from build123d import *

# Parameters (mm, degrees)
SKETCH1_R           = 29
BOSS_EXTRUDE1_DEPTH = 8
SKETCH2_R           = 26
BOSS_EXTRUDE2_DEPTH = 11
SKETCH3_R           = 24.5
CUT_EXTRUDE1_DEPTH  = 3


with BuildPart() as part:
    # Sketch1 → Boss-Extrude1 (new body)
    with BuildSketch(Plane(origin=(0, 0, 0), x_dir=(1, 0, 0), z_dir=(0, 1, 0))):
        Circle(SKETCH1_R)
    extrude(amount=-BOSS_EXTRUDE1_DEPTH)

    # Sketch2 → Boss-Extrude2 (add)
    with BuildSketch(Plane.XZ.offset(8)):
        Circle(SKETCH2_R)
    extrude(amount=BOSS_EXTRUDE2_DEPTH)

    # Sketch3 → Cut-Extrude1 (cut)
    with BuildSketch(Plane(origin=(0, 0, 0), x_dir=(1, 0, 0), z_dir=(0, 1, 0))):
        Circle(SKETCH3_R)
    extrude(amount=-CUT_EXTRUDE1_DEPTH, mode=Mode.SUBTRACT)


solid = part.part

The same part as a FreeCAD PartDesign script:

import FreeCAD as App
import Part
import Sketcher
from FreeCAD import Vector

doc = App.newDocument("Part")
body = doc.addObject("PartDesign::Body", "Body")

# Sketch on XZ plane
sketch1 = body.newObject("Sketcher::SketchObject", "Sketch")
sketch1.AttachmentSupport = (doc.getObject("XZ_Plane"), [""])
sketch1.MapMode = "FlatFace"
sketch1.addGeometry(Part.Circle(Vector(0, 0, 0), Vector(0, 0, 1), 29), False)
sketch1.addConstraint([
    Sketcher.Constraint("Coincident", 0, 3, -1, 1),
    Sketcher.Constraint("Diameter", 0, 58.0),
])
pad1 = body.newObject("PartDesign::Pad", "Pad")
pad1.Profile = sketch1
pad1.Length = 8

# Sketch on XZ plane
sketch2 = body.newObject("Sketcher::SketchObject", "Sketch001")
sketch2.AttachmentSupport = (doc.getObject("XZ_Plane"), [""])
sketch2.MapMode = "FlatFace"
sketch2.AttachmentOffset = App.Placement(Vector(0, 0, 8), App.Rotation())
sketch2.addGeometry(Part.Circle(Vector(0, 0, 0), Vector(0, 0, 1), 26), False)
sketch2.addConstraint([
    Sketcher.Constraint("Coincident", 0, 3, -1, 1),
    Sketcher.Constraint("Diameter", 0, 52.0),
])
pad2 = body.newObject("PartDesign::Pad", "Pad001")
pad2.Profile = sketch2
pad2.Length = 11

# Sketch on XZ plane
sketch3 = body.newObject("Sketcher::SketchObject", "Sketch002")
sketch3.AttachmentSupport = (doc.getObject("XZ_Plane"), [""])
sketch3.MapMode = "FlatFace"
sketch3.addGeometry(Part.Circle(Vector(0, 0, 0), Vector(0, 0, 1), 24), False)
sketch3.addConstraint([
    Sketcher.Constraint("Coincident", 0, 3, -1, 1),
    Sketcher.Constraint("Diameter", 0, 49.0),
])
pocket1 = body.newObject("PartDesign::Pocket", "Pocket")
pocket1.Profile = sketch3
pocket1.Length = 3
pocket1.Reversed = True

doc.recompute()
